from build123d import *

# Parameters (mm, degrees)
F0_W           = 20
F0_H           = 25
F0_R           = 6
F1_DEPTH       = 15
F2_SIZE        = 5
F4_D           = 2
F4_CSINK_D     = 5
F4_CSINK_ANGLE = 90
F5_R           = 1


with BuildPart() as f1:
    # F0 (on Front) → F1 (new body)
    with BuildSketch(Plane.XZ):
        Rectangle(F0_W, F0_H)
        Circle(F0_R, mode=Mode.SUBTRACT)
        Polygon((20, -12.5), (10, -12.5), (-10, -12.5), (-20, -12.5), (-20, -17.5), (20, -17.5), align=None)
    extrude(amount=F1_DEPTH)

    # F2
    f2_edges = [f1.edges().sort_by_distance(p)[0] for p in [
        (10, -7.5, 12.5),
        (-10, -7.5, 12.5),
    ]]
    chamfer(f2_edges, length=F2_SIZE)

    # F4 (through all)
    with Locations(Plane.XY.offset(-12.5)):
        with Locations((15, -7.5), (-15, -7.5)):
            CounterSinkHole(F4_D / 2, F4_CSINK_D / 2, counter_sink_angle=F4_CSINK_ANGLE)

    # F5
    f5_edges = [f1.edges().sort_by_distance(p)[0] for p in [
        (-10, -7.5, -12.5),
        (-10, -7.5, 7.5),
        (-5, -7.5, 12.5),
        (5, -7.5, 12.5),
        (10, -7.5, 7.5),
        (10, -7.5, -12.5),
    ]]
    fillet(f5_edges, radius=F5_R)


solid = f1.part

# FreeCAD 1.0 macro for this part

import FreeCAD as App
import Part
import Sketcher
Q = App.Units.Quantity


def edges_at(feature, points):
    """Names of the edges that pass closest to the given points."""
    edges = feature.Shape.Edges
    near = lambda p: min(range(len(edges)), key=lambda i: edges[i].distToShape(Part.Vertex(*p))[0])
    return sorted({f"Edge{near(p) + 1}" for p in points})

doc = App.newDocument("Part")
body = doc.addObject("PartDesign::Body", "Body")

sketch1 = doc.addObject("Sketcher::SketchObject", "Sketch")
body.addObject(sketch1)
sketch1.AttachmentSupport = (doc.XZ_Plane, [""])
sketch1.MapMode = "FlatFace"
sketch1.addGeometry([
    Part.LineSegment(App.Vector(-10, 12.5, 0), App.Vector(-10, -12.5, 0)),
    Part.LineSegment(App.Vector(-10, -12.5, 0), App.Vector(-20, -12.5, 0)),
    Part.LineSegment(App.Vector(-20, -12.5, 0), App.Vector(-20, -17.5, 0)),
    Part.LineSegment(App.Vector(-20, -17.5, 0), App.Vector(20, -17.5, 0)),
    Part.LineSegment(App.Vector(20, -17.5, 0), App.Vector(20, -12.5, 0)),
    Part.LineSegment(App.Vector(20, -12.5, 0), App.Vector(10, -12.5, 0)),
    Part.LineSegment(App.Vector(10, -12.5, 0), App.Vector(10, 12.5, 0)),
    Part.LineSegment(App.Vector(10, 12.5, 0), App.Vector(-10, 12.5, 0)),
    Part.Circle(App.Vector(0, 0, 0), App.Vector(0, 0, 1), 6),
], False)
sketch1.addConstraint([
    Sketcher.Constraint("Coincident", 0, 2, 1, 1),
    Sketcher.Constraint("Coincident", 1, 2, 2, 1),
    Sketcher.Constraint("Coincident", 2, 2, 3, 1),
    Sketcher.Constraint("Coincident", 3, 2, 4, 1),
    Sketcher.Constraint("Coincident", 4, 2, 5, 1),
    Sketcher.Constraint("Coincident", 5, 2, 6, 1),
    Sketcher.Constraint("Coincident", 6, 2, 7, 1),
    Sketcher.Constraint("Coincident", 7, 2, 0, 1),
    Sketcher.Constraint("Vertical", 0),
    Sketcher.Constraint("Horizontal", 1),
    Sketcher.Constraint("Vertical", 2),
    Sketcher.Constraint("Horizontal", 3),
    Sketcher.Constraint("Vertical", 4),
    Sketcher.Constraint("Horizontal", 5),
    Sketcher.Constraint("Vertical", 6),
    Sketcher.Constraint("Horizontal", 7),
    Sketcher.Constraint("Coincident", 8, 3, -1, 1),
    Sketcher.Constraint("Symmetric", 0, 2, 6, 2, -1, 1),
    Sketcher.Constraint("Symmetric", 1, 2, 4, 2, -2),
    Sketcher.Constraint("Diameter", 8, Q("12 mm")),
    Sketcher.Constraint("DistanceX", 1, 2, 1, 1, Q("10 mm")),
    Sketcher.Constraint("DistanceX", 3, 1, 3, 2, Q("40 mm")),
    Sketcher.Constraint("DistanceY", 0, 2, 0, 1, Q("25 mm")),
    Sketcher.Constraint("DistanceY", 2, 2, 2, 1, Q("5 mm")),
])
pad1 = doc.addObject("PartDesign::Pad", "Pad")
body.addObject(pad1)
pad1.Profile = sketch1
pad1.Length = 15
doc.recompute()

chamfer = doc.addObject("PartDesign::Chamfer", "Chamfer")
body.addObject(chamfer)
chamfer.Base = (pad1, edges_at(pad1, [(10, -7.5, 12.5), (-10, -7.5, 12.5)]))
chamfer.Size = 5

sketch2 = doc.addObject("Sketcher::SketchObject", "Sketch001")
body.addObject(sketch2)
sketch2.AttachmentSupport = (doc.XY_Plane, [""])
sketch2.MapMode = "FlatFace"
sketch2.AttachmentOffset = App.Placement(App.Vector(0, 0, -12.5), App.Rotation())
sketch2.addGeometry([
    Part.Circle(App.Vector(15, -7.5, 0), App.Vector(0, 0, 1), 1),
    Part.Circle(App.Vector(-15, -7.5, 0), App.Vector(0, 0, 1), 1),
], False)
sketch2.addConstraint([
    Sketcher.Constraint("Equal", 0, 1),
    Sketcher.Constraint("Symmetric", 0, 3, 1, 3, -2),
    Sketcher.Constraint("Diameter", 0, Q("2 mm")),
    Sketcher.Constraint("DistanceX", -1, 1, 0, 3, Q("15 mm")),
    Sketcher.Constraint("DistanceY", 0, 3, -1, 1, Q("7.5 mm")),
])
doc.recompute()
hole = doc.addObject("PartDesign::Hole", "Hole")
body.addObject(hole)
hole.Profile = sketch2
hole.ThreadType = "None"
hole.Diameter = 2
hole.DepthType = "ThroughAll"
hole.HoleCutType = "Countersink"
hole.HoleCutDiameter = 5
hole.HoleCutCountersinkAngle = 90
doc.recompute()

fillet = doc.addObject("PartDesign::Fillet", "Fillet")
body.addObject(fillet)
fillet.Base = (hole, edges_at(hole, [
    (-10, -7.5, -12.5),
    (-10, -7.5, 7.5),
    (-5, -7.5, 12.5),
    (5, -7.5, 12.5),
    (10, -7.5, 7.5),
    (10, -7.5, -12.5),
]))
fillet.Radius = 1

doc.recompute()
